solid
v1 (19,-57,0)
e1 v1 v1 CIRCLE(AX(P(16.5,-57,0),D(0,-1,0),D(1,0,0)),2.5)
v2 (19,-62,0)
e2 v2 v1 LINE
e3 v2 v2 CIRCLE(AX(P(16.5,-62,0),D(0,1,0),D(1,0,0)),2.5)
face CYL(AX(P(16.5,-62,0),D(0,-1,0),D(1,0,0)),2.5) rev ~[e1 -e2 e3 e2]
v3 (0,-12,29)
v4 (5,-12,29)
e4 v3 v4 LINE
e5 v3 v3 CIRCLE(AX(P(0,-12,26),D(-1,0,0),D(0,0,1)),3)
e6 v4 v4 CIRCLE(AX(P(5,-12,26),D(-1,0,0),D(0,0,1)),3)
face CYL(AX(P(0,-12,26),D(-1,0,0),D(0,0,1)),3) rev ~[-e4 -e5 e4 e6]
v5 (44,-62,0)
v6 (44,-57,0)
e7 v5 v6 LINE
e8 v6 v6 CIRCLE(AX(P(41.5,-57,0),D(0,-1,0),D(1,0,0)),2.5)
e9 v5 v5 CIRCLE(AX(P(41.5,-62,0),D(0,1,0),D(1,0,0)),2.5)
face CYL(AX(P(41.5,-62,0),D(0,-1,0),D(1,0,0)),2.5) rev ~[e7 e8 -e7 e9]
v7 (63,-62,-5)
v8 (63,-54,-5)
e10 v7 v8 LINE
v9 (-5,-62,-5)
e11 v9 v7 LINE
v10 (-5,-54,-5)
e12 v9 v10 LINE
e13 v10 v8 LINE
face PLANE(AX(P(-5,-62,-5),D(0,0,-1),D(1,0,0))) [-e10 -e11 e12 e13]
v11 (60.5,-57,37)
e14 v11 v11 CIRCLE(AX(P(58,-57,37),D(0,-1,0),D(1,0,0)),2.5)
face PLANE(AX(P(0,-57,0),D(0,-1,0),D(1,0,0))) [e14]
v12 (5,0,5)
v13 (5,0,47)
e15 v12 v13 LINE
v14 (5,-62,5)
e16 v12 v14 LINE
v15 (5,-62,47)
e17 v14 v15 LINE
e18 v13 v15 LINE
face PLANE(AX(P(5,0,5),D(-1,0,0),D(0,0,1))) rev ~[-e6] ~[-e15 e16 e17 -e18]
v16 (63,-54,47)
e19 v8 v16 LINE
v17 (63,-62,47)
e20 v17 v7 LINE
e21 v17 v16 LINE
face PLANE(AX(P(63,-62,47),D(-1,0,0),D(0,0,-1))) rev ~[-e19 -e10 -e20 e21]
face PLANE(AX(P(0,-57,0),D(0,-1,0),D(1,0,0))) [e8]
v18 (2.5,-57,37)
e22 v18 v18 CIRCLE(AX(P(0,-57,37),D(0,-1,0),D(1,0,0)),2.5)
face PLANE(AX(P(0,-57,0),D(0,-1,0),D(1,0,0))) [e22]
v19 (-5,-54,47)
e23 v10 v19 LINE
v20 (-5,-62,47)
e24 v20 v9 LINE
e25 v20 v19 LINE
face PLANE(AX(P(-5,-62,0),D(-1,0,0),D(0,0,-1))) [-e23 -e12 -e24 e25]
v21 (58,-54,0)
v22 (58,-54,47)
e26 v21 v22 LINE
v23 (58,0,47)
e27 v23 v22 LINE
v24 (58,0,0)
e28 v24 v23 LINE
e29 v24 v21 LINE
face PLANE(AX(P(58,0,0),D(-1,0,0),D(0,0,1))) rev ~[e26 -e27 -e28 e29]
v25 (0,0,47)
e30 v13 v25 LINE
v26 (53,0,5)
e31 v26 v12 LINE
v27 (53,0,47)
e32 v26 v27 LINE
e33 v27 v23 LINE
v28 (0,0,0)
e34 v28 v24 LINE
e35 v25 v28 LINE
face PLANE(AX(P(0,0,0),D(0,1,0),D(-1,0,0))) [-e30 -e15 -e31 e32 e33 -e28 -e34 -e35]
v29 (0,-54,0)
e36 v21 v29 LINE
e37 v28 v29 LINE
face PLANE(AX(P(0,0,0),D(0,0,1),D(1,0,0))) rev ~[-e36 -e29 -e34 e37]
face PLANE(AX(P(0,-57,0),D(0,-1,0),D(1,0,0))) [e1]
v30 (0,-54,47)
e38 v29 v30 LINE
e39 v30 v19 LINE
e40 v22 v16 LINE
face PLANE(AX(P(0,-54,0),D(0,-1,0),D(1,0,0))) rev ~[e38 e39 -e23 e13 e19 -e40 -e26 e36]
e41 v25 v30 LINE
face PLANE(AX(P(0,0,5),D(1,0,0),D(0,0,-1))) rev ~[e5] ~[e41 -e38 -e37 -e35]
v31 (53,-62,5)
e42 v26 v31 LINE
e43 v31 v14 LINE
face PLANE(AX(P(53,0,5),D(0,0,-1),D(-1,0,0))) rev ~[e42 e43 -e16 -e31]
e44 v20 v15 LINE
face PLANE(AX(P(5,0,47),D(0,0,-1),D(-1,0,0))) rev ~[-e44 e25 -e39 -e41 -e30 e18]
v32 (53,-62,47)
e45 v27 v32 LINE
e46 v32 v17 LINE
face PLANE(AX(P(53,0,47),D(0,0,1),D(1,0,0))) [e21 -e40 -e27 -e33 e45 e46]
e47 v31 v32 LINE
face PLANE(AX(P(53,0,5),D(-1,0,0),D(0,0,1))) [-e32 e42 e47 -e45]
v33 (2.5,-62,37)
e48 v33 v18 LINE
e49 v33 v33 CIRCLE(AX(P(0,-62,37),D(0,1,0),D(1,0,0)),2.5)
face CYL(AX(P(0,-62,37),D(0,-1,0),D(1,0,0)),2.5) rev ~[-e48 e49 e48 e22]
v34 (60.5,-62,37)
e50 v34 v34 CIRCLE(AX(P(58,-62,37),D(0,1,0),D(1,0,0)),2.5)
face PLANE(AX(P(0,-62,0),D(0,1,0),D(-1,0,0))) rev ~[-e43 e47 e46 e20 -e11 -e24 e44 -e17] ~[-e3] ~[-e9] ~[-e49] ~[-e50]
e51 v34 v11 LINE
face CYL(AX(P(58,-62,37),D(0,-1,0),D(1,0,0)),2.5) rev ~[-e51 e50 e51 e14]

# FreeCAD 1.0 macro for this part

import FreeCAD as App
import Part
import Sketcher
from FreeCAD import Vector
Q = App.Units.Quantity


def add_polygon(sketch, points):
    """Adds a closed chain of lines whose ends are joined by coincident constraints."""
    first, n = sketch.GeometryCount, len(points)
    for a, b in zip(points, points[1:] + points[:1]):
        sketch.addGeometry(Part.LineSegment(App.Vector(*a, 0), App.Vector(*b, 0)), False)
    for i in range(n):
        sketch.addConstraint(Sketcher.Constraint("Coincident", first + i, 2, first + (i + 1) % n, 1))

doc = App.newDocument("Part")
body = doc.addObject("PartDesign::Body", "Body")

# Sketch on XZ plane
sketch1 = body.newObject("Sketcher::SketchObject", "Sketch")
sketch1.AttachmentSupport = (doc.getObject("XZ_Plane"), [""])
sketch1.MapMode = "FlatFace"
add_polygon(sketch1, [(58, 0), (0, 0), (0, 47), (5, 47), (5, 5), (53, 5), (53, 47), (58, 47)])  # lines 0-7
sketch1.addConstraint(Sketcher.Constraint("Horizontal", 0))
sketch1.addConstraint(Sketcher.Constraint("Vertical", 1))
sketch1.addConstraint(Sketcher.Constraint("Horizontal", 2))
sketch1.addConstraint(Sketcher.Constraint("Vertical", 3))
sketch1.addConstraint(Sketcher.Constraint("Horizontal", 4))
sketch1.addConstraint(Sketcher.Constraint("Vertical", 5))
sketch1.addConstraint(Sketcher.Constraint("Horizontal", 6))
sketch1.addConstraint(Sketcher.Constraint("Vertical", 7))
sketch1.addConstraint(Sketcher.Constraint("Coincident", 0, 2, -1, 1))
sketch1.addConstraint(Sketcher.Constraint("Horizontal", 2, 2, 5, 2))
sketch1.addConstraint(Sketcher.Constraint("Equal", 2, 6))
sketch1.addConstraint(Sketcher.Constraint("DistanceX", 0, 2, 0, 1, Q("58 mm")))
sketch1.addConstraint(Sketcher.Constraint("DistanceX", 2, 1, 2, 2, Q("5 mm")))
sketch1.addConstraint(Sketcher.Constraint("DistanceY", 3, 2, 3, 1, Q("42 mm")))
sketch1.addConstraint(Sketcher.Constraint("DistanceY", -1, 1, 3, 2, Q("5 mm")))
pad1 = body.newObject("PartDesign::Pad", "Pad")
pad1.Profile = sketch1
pad1.Length = 62

# Sketch on XZ plane
sketch2 = body.newObject("Sketcher::SketchObject", "Sketch001")
sketch2.AttachmentSupport = (doc.getObject("XZ_Plane"), [""])
sketch2.MapMode = "FlatFace"
sketch2.AttachmentOffset = App.Placement(Vector(0, 0, 62), App.Rotation())
add_polygon(sketch2, [(63, 47), (58, 47), (58, 0), (0, 0), (0, 47), (-5, 47), (-5, -5), (63, -5)])  # lines 0-7
sketch2.addConstraint(Sketcher.Constraint("Horizontal", 0))
sketch2.addConstraint(Sketcher.Constraint("Vertical", 1))
sketch2.addConstraint(Sketcher.Constraint("Horizontal", 2))
sketch2.addConstraint(Sketcher.Constraint("Vertical", 3))
sketch2.addConstraint(Sketcher.Constraint("Horizontal", 4))
sketch2.addConstraint(Sketcher.Constraint("Vertical", 5))
sketch2.addConstraint(Sketcher.Constraint("Horizontal", 6))
sketch2.addConstraint(Sketcher.Constraint("Vertical", 7))
sketch2.addConstraint(Sketcher.Constraint("Coincident", 2, 2, -1, 1))
sketch2.addConstraint(Sketcher.Constraint("Horizontal", 0, 2, 3, 2))
sketch2.addConstraint(Sketcher.Constraint("Equal", 0, 4))
sketch2.addConstraint(Sketcher.Constraint("DistanceX", 0, 2, 0, 1, Q("5 mm")))
sketch2.addConstraint(Sketcher.Constraint("DistanceY", 5, 2, -1, 1, Q("5 mm")))
sketch2.addConstraint(Sketcher.Constraint("DistanceX", 2, 2, 2, 1, Q("58 mm")))
sketch2.addConstraint(Sketcher.Constraint("DistanceY", 1, 2, 1, 1, Q("47 mm")))
pad2 = body.newObject("PartDesign::Pad", "Pad001")
pad2.Profile = sketch2
pad2.Length = 8
pad2.Reversed = True

# Sketch on YZ plane
sketch3 = body.newObject("Sketcher::SketchObject", "Sketch002")
sketch3.AttachmentSupport = (doc.getObject("YZ_Plane"), [""])
sketch3.MapMode = "FlatFace"
sketch3.addGeometry(Part.Circle(Vector(-12, 26, 0), Vector(0, 0, 1), 3), False)
sketch3.addConstraint(Sketcher.Constraint("Diameter", 0, Q("6 mm")))
sketch3.addConstraint(Sketcher.Constraint("DistanceX", 0, 3, -1, 1, Q("12 mm")))
sketch3.addConstraint(Sketcher.Constraint("DistanceY", -1, 1, 0, 3, Q("26 mm")))
pocket1 = body.newObject("PartDesign::Pocket", "Pocket")
pocket1.Profile = sketch3
pocket1.Length = 5
pocket1.Reversed = True

# Sketch on XZ plane
sketch4 = body.newObject("Sketcher::SketchObject", "Sketch003")
sketch4.AttachmentSupport = (doc.getObject("XZ_Plane"), [""])
sketch4.MapMode = "FlatFace"
sketch4.AttachmentOffset = App.Placement(Vector(0, 0, 62), App.Rotation())
sketch4.addGeometry(Part.Circle(Vector(58, 37, 0), Vector(0, 0, 1), 2.5), False)
sketch4.addGeometry(Part.Circle(Vector(0, 37, 0), Vector(0, 0, 1), 2.5), False)
sketch4.addGeometry(Part.Circle(Vector(16.5, 0, 0), Vector(0, 0, 1), 2.5), False)
sketch4.addGeometry(Part.Circle(Vector(41.5, 0, 0), Vector(0, 0, 1), 2.5), False)
sketch4.addConstraint(Sketcher.Constraint("Equal", 0, 1))
sketch4.addConstraint(Sketcher.Constraint("Equal", 1, 2))
sketch4.addConstraint(Sketcher.Constraint("Equal", 2, 3))
sketch4.addConstraint(Sketcher.Constraint("PointOnObject", 1, 3, -2))
sketch4.addConstraint(Sketcher.Constraint("PointOnObject", 2, 3, -1))
sketch4.addConstraint(Sketcher.Constraint("PointOnObject", 3, 3, -1))
sketch4.addConstraint(Sketcher.Constraint("Horizontal", 0, 3, 1, 3))
sketch4.addConstraint(Sketcher.Constraint("Diameter", 0, Q("5 mm")))
sketch4.addConstraint(Sketcher.Constraint("DistanceX", -1, 1, 0, 3, Q("58 mm")))
sketch4.addConstraint(Sketcher.Constraint("DistanceY", -1, 1, 0, 3, Q("37 mm")))
sketch4.addConstraint(Sketcher.Constraint("DistanceX", 2, 3, 3, 3, Q("25 mm")))
sketch4.addConstraint(Sketcher.Constraint("DistanceX", -1, 1, 2, 3, Q("16.5 mm")))
pocket2 = body.newObject("PartDesign::Pocket", "Pocket001")
pocket2.Profile = sketch4
pocket2.Length = 5

doc.recompute()
